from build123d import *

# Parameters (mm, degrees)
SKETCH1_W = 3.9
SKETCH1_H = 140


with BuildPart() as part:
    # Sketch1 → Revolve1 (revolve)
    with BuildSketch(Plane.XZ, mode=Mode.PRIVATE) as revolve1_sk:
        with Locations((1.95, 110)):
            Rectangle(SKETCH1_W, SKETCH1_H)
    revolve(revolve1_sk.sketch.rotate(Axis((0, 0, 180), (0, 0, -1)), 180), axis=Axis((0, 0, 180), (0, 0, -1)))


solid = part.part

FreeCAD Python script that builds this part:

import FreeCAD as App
import Part
import Sketcher

V = App.Vector

doc = App.newDocument("Part")
body = doc.addObject("PartDesign::Body", "Body")

sketch1 = doc.addObject("Sketcher::SketchObject", "Sketch")
body.addObject(sketch1)
sketch1.AttachmentSupport = (doc.XZ_Plane, [""])
sketch1.MapMode = "FlatFace"
sketch1.addGeometry([
    Part.LineSegment(V(0, 180, 0), V(0, 40, 0)),
    Part.LineSegment(V(0, 40, 0), V(3.9, 40, 0)),
    Part.LineSegment(V(3.9, 40, 0), V(3.9, 180, 0)),
    Part.LineSegment(V(3.9, 180, 0), V(0, 180, 0)),
], False)
sketch1.addConstraint([
    Sketcher.Constraint("Coincident", 0, 2, 1, 1),
    Sketcher.Constraint("Coincident", 1, 2, 2, 1),
    Sketcher.Constraint("Coincident", 2, 2, 3, 1),
    Sketcher.Constraint("Coincident", 3, 2, 0, 1),
    Sketcher.Constraint("Vertical", 0),
    Sketcher.Constraint("Horizontal", 1),
    Sketcher.Constraint("Vertical", 2),
    Sketcher.Constraint("Horizontal", 3),
    Sketcher.Constraint("PointOnObject", 0, 2, -2),
    Sketcher.Constraint("DistanceY", 0, 2, 0, 1, 140.0),
    Sketcher.Constraint("DistanceX", 1, 1, 1, 2, 3.9),
    Sketcher.Constraint("DistanceY", -1, 1, 0, 2, 40.0),
])
revolution = doc.addObject("PartDesign::Revolution", "Revolution")
body.addObject(revolution)
revolution.Profile = sketch1
revolution.ReferenceAxis = (sketch1, ["V_Axis"])
revolution.Angle = 360

doc.recompute()
